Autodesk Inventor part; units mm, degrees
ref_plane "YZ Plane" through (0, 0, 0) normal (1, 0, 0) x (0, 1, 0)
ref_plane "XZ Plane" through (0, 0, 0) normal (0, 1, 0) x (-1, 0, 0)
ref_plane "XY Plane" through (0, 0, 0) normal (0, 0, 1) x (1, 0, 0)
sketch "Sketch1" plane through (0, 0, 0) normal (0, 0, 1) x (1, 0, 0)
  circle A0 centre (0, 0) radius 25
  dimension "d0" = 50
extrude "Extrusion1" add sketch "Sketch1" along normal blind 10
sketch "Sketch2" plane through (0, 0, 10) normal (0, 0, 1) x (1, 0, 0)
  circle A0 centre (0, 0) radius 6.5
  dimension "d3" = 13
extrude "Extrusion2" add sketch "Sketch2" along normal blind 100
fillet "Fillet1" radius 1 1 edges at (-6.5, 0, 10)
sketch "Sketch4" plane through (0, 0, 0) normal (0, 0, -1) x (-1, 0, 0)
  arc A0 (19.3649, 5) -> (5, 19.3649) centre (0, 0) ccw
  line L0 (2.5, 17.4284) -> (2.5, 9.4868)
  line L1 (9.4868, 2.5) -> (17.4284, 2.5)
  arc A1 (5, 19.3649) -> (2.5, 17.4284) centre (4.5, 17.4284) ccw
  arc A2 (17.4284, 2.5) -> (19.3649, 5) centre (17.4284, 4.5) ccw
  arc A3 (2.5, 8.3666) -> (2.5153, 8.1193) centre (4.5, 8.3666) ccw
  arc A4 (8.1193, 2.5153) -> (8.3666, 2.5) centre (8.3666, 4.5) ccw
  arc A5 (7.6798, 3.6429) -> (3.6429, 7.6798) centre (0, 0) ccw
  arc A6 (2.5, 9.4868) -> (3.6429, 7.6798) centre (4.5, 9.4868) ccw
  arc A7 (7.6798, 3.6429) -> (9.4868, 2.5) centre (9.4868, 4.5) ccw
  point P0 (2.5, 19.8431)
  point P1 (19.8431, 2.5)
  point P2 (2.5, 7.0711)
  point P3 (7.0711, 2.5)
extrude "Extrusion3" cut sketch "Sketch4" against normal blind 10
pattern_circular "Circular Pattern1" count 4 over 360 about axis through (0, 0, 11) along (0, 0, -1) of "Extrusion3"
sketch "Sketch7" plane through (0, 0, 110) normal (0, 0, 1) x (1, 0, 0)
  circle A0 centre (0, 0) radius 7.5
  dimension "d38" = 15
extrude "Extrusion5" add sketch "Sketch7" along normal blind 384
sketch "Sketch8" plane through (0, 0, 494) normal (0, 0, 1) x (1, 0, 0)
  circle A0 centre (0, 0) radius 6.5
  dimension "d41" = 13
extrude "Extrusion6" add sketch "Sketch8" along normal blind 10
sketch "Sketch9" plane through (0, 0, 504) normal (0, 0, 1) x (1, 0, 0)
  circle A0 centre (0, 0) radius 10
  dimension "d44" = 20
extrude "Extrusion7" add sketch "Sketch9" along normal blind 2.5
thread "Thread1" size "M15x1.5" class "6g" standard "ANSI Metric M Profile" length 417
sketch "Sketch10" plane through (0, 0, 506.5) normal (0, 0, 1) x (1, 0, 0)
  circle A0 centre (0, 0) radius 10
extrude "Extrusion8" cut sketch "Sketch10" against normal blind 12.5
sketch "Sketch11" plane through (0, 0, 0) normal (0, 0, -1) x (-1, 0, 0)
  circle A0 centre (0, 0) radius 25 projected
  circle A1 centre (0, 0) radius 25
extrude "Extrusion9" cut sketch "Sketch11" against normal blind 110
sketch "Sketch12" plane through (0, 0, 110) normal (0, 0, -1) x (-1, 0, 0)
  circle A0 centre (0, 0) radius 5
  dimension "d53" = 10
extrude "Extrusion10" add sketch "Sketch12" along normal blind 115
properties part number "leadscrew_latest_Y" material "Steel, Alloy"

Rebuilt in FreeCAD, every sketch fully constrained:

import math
import FreeCAD as App
import Part
import Sketcher


def edges_at(feature, points):
    """Names of the edges that pass closest to the given points."""
    edges = feature.Shape.Edges
    near = lambda p: min(range(len(edges)), key=lambda i: edges[i].distToShape(Part.Vertex(*p))[0])
    return sorted({f"Edge{near(p) + 1}" for p in points})

doc = App.newDocument("Part")
params = doc.addObject("Spreadsheet::Sheet", "Params")
for row, (alias, value) in enumerate([
    ("sketch1_diameter", "50 mm"),
    ("pad1_length", "10 mm"),
    ("sketch2_diameter", "13 mm"),
    ("pad2_length", "100 mm"),
    ("fillet_radius", "1 mm"),
    ("sketch3_radius", "2 mm"),
    ("sketch3_radius2", "20 mm"),
    ("sketch3_radius3", "8.5 mm"),
    ("pocket1_length", "10 mm"),
    ("sketch4_diameter", "15 mm"),
    ("pad3_length", "384 mm"),
    ("sketch5_diameter", "13 mm"),
    ("pad4_length", "10 mm"),
    ("sketch6_diameter", "20 mm"),
    ("pad5_length", "2.5 mm"),
    ("sketch7_diameter", "20 mm"),
    ("pocket2_length", "12.5 mm"),
    ("sketch8_diameter", "50 mm"),
    ("pocket3_length", "110 mm"),
    ("sketch9_diameter", "10 mm"),
    ("pad6_length", "115 mm"),
], start=1):
    params.set(f"A{row}", alias)
    params.set(f"B{row}", "=" + value)
    params.setAlias(f"B{row}", alias)

body = doc.addObject("PartDesign::Body", "Body")

# Sketch on XY plane
sketch1 = body.newObject("Sketcher::SketchObject", "Sketch")
sketch1.AttachmentSupport = (doc.getObject("XY_Plane"), [""])
sketch1.MapMode = "FlatFace"
sketch1.addGeometry(Part.Circle(App.Vector(0, 0, 0), App.Vector(0, 0, 1), 25), False)
sketch1.addConstraint([
    Sketcher.Constraint("Coincident", 0, 3, -1, 1),
    Sketcher.Constraint("Diameter", 0, 50.0),
])
sketch1.setExpression("Constraints[1]", "Params.sketch1_diameter")
pad1 = body.newObject("PartDesign::Pad", "Pad")
pad1.Profile = sketch1
pad1.setExpression("Length", "Params.pad1_length")

# Sketch on XY plane
sketch2 = body.newObject("Sketcher::SketchObject", "Sketch001")
sketch2.AttachmentSupport = (doc.getObject("XY_Plane"), [""])
sketch2.MapMode = "FlatFace"
sketch2.AttachmentOffset = App.Placement(App.Vector(0, 0, 10), App.Rotation())
sketch2.addGeometry(Part.Circle(App.Vector(0, 0, 0), App.Vector(0, 0, 1), 6), False)
sketch2.addConstraint([
    Sketcher.Constraint("Coincident", 0, 3, -1, 1),
    Sketcher.Constraint("Diameter", 0, 13.0),
])
sketch2.setExpression("Constraints[1]", "Params.sketch2_diameter")
pad2 = body.newObject("PartDesign::Pad", "Pad001")
pad2.Profile = sketch2
pad2.setExpression("Length", "Params.pad2_length")
doc.recompute()

fillet = body.newObject("PartDesign::Fillet", "Fillet")
fillet.Base = (pad2, edges_at(pad2, [(-6.5, 0, 10)]))
fillet.setExpression("Radius", "Params.fillet_radius")

# Sketch on XY plane
sketch3 = body.newObject("Sketcher::SketchObject", "Sketch002")
sketch3.AttachmentSupport = (doc.getObject("XY_Plane"), [""])
sketch3.MapMode = "FlatFace"
sketch3.addGeometry([
    Part.ArcOfCircle(Part.Circle(App.Vector(-17.4, 4.5, 0), App.Vector(0, 0, 1), 2), math.radians(166), math.radians(270)),  # 0
    Part.ArcOfCircle(Part.Circle(App.Vector(0, 0, 0), App.Vector(0, 0, 1), 20), math.radians(104), math.radians(166)),  # 1
    Part.ArcOfCircle(Part.Circle(App.Vector(-4.5, 17.4, 0), App.Vector(0, 0, 1), 2), math.radians(0), math.radians(104)),  # 2
    Part.LineSegment(App.Vector(-2.5, 17.4, 0), App.Vector(-2.5, 9.5, 0)),  # 3
    Part.ArcOfCircle(Part.Circle(App.Vector(-4.5, 9.5, 0), App.Vector(0, 0, 1), 2), math.radians(-65), math.radians(0)),  # 4
    Part.ArcOfCircle(Part.Circle(App.Vector(0, 0, 0), App.Vector(0, 0, 1), 8.5), math.radians(115), math.radians(155)),  # 5
    Part.ArcOfCircle(Part.Circle(App.Vector(-9.5, 4.5, 0), App.Vector(0, 0, 1), 2), math.radians(-90), math.radians(-25)),  # 6
    Part.LineSegment(App.Vector(-9.5, 2.5, 0), App.Vector(-17.4, 2.5, 0)),  # 7
], False)
sketch3.addConstraint([
    Sketcher.Constraint("Tangent", 0, 1, 1, 2),
    Sketcher.Constraint("Tangent", 1, 1, 2, 2),
    Sketcher.Constraint("Tangent", 2, 1, 3, 1),
    Sketcher.Constraint("Tangent", 3, 2, 4, 2),
    Sketcher.Constraint("Tangent", 4, 1, 5, 1),
    Sketcher.Constraint("Tangent", 5, 2, 6, 2),
    Sketcher.Constraint("Tangent", 6, 1, 7, 1),
    Sketcher.Constraint("Tangent", 7, 2, 0, 2),
    Sketcher.Constraint("Vertical", 3),
    Sketcher.Constraint("Horizontal", 7),
    Sketcher.Constraint("Coincident", 1, 3, -1, 1),
    Sketcher.Constraint("Coincident", 5, 3, -1, 1),
    Sketcher.Constraint("Equal", 0, 2),
    Sketcher.Constraint("Equal", 2, 4),
    Sketcher.Constraint("Equal", 4, 6),
    Sketcher.Constraint("Equal", 7, 3),
    Sketcher.Constraint("Radius", 0, 2.0),
    Sketcher.Constraint("Radius", 1, 20.0),
    Sketcher.Constraint("Radius", 5, 8.5),
    Sketcher.Constraint("DistanceY", -1, 1, 0, 1, 5.0),
])
sketch3.setExpression("Constraints[16]", "Params.sketch3_radius")
sketch3.setExpression("Constraints[17]", "Params.sketch3_radius2")
sketch3.setExpression("Constraints[18]", "Params.sketch3_radius3")
pocket1 = body.newObject("PartDesign::Pocket", "Pocket")
pocket1.Profile = sketch3
pocket1.setExpression("Length", "Params.pocket1_length")
pocket1.Reversed = True
doc.recompute()

polarpattern = body.newObject("PartDesign::PolarPattern", "PolarPattern")
polarpattern.Originals = [pocket1]
polarpattern.Axis = (doc.getObject("Z_Axis"), [""])
polarpattern.Angle = 360
polarpattern.Occurrences = 4
body.Tip = polarpattern

# Sketch on XY plane
sketch4 = body.newObject("Sketcher::SketchObject", "Sketch003")
sketch4.AttachmentSupport = (doc.getObject("XY_Plane"), [""])
sketch4.MapMode = "FlatFace"
sketch4.AttachmentOffset = App.Placement(App.Vector(0, 0, 110), App.Rotation())
sketch4.addGeometry(Part.Circle(App.Vector(0, 0, 0), App.Vector(0, 0, 1), 8), False)
sketch4.addConstraint([
    Sketcher.Constraint("Coincident", 0, 3, -1, 1),
    Sketcher.Constraint("Diameter", 0, 15.0),
])
sketch4.setExpression("Constraints[1]", "Params.sketch4_diameter")
pad3 = body.newObject("PartDesign::Pad", "Pad002")
pad3.Profile = sketch4
pad3.setExpression("Length", "Params.pad3_length")

# Sketch on XY plane
sketch5 = body.newObject("Sketcher::SketchObject", "Sketch004")
sketch5.AttachmentSupport = (doc.getObject("XY_Plane"), [""])
sketch5.MapMode = "FlatFace"
sketch5.AttachmentOffset = App.Placement(App.Vector(0, 0, 494), App.Rotation())
sketch5.addGeometry(Part.Circle(App.Vector(0, 0, 0), App.Vector(0, 0, 1), 6), False)
sketch5.addConstraint([
    Sketcher.Constraint("Coincident", 0, 3, -1, 1),
    Sketcher.Constraint("Diameter", 0, 13.0),
])
sketch5.setExpression("Constraints[1]", "Params.sketch5_diameter")
pad4 = body.newObject("PartDesign::Pad", "Pad003")
pad4.Profile = sketch5
pad4.setExpression("Length", "Params.pad4_length")

# Sketch on XY plane
sketch6 = body.newObject("Sketcher::SketchObject", "Sketch005")
sketch6.AttachmentSupport = (doc.getObject("XY_Plane"), [""])
sketch6.MapMode = "FlatFace"
sketch6.AttachmentOffset = App.Placement(App.Vector(0, 0, 504), App.Rotation())
sketch6.addGeometry(Part.Circle(App.Vector(0, 0, 0), App.Vector(0, 0, 1), 10), False)
sketch6.addConstraint([
    Sketcher.Constraint("Coincident", 0, 3, -1, 1),
    Sketcher.Constraint("Diameter", 0, 20.0),
])
sketch6.setExpression("Constraints[1]", "Params.sketch6_diameter")
pad5 = body.newObject("PartDesign::Pad", "Pad004")
pad5.Profile = sketch6
pad5.setExpression("Length", "Params.pad5_length")

# Sketch on XY plane
sketch7 = body.newObject("Sketcher::SketchObject", "Sketch006")
sketch7.AttachmentSupport = (doc.getObject("XY_Plane"), [""])
sketch7.MapMode = "FlatFace"
sketch7.AttachmentOffset = App.Placement(App.Vector(0, 0, 506.5), App.Rotation())
sketch7.addGeometry(Part.Circle(App.Vector(0, 0, 0), App.Vector(0, 0, 1), 10), False)
sketch7.addConstraint([
    Sketcher.Constraint("Coincident", 0, 3, -1, 1),
    Sketcher.Constraint("Diameter", 0, 20.0),
])
sketch7.setExpression("Constraints[1]", "Params.sketch7_diameter")
pocket2 = body.newObject("PartDesign::Pocket", "Pocket001")
pocket2.Profile = sketch7
pocket2.setExpression("Length", "Params.pocket2_length")

# Sketch on XY plane
sketch8 = body.newObject("Sketcher::SketchObject", "Sketch007")
sketch8.AttachmentSupport = (doc.getObject("XY_Plane"), [""])
sketch8.MapMode = "FlatFace"
sketch8.addGeometry(Part.Circle(App.Vector(0, 0, 0), App.Vector(0, 0, 1), 25), False)
sketch8.addConstraint([
    Sketcher.Constraint("Coincident", 0, 3, -1, 1),
    Sketcher.Constraint("Diameter", 0, 50.0),
])
sketch8.setExpression("Constraints[1]", "Params.sketch8_diameter")
pocket3 = body.newObject("PartDesign::Pocket", "Pocket002")
pocket3.Profile = sketch8
pocket3.setExpression("Length", "Params.pocket3_length")
pocket3.Reversed = True

# Sketch on XY plane
sketch9 = body.newObject("Sketcher::SketchObject", "Sketch008")
sketch9.AttachmentSupport = (doc.getObject("XY_Plane"), [""])
sketch9.MapMode = "FlatFace"
sketch9.AttachmentOffset = App.Placement(App.Vector(0, 0, 110), App.Rotation())
sketch9.addGeometry(Part.Circle(App.Vector(0, 0, 0), App.Vector(0, 0, 1), 5), False)
sketch9.addConstraint([
    Sketcher.Constraint("Coincident", 0, 3, -1, 1),
    Sketcher.Constraint("Diameter", 0, 10.0),
])
sketch9.setExpression("Constraints[1]", "Params.sketch9_diameter")
pad6 = body.newObject("PartDesign::Pad", "Pad005")
pad6.Profile = sketch9
pad6.setExpression("Length", "Params.pad6_length")
pad6.Reversed = True

doc.recompute()
